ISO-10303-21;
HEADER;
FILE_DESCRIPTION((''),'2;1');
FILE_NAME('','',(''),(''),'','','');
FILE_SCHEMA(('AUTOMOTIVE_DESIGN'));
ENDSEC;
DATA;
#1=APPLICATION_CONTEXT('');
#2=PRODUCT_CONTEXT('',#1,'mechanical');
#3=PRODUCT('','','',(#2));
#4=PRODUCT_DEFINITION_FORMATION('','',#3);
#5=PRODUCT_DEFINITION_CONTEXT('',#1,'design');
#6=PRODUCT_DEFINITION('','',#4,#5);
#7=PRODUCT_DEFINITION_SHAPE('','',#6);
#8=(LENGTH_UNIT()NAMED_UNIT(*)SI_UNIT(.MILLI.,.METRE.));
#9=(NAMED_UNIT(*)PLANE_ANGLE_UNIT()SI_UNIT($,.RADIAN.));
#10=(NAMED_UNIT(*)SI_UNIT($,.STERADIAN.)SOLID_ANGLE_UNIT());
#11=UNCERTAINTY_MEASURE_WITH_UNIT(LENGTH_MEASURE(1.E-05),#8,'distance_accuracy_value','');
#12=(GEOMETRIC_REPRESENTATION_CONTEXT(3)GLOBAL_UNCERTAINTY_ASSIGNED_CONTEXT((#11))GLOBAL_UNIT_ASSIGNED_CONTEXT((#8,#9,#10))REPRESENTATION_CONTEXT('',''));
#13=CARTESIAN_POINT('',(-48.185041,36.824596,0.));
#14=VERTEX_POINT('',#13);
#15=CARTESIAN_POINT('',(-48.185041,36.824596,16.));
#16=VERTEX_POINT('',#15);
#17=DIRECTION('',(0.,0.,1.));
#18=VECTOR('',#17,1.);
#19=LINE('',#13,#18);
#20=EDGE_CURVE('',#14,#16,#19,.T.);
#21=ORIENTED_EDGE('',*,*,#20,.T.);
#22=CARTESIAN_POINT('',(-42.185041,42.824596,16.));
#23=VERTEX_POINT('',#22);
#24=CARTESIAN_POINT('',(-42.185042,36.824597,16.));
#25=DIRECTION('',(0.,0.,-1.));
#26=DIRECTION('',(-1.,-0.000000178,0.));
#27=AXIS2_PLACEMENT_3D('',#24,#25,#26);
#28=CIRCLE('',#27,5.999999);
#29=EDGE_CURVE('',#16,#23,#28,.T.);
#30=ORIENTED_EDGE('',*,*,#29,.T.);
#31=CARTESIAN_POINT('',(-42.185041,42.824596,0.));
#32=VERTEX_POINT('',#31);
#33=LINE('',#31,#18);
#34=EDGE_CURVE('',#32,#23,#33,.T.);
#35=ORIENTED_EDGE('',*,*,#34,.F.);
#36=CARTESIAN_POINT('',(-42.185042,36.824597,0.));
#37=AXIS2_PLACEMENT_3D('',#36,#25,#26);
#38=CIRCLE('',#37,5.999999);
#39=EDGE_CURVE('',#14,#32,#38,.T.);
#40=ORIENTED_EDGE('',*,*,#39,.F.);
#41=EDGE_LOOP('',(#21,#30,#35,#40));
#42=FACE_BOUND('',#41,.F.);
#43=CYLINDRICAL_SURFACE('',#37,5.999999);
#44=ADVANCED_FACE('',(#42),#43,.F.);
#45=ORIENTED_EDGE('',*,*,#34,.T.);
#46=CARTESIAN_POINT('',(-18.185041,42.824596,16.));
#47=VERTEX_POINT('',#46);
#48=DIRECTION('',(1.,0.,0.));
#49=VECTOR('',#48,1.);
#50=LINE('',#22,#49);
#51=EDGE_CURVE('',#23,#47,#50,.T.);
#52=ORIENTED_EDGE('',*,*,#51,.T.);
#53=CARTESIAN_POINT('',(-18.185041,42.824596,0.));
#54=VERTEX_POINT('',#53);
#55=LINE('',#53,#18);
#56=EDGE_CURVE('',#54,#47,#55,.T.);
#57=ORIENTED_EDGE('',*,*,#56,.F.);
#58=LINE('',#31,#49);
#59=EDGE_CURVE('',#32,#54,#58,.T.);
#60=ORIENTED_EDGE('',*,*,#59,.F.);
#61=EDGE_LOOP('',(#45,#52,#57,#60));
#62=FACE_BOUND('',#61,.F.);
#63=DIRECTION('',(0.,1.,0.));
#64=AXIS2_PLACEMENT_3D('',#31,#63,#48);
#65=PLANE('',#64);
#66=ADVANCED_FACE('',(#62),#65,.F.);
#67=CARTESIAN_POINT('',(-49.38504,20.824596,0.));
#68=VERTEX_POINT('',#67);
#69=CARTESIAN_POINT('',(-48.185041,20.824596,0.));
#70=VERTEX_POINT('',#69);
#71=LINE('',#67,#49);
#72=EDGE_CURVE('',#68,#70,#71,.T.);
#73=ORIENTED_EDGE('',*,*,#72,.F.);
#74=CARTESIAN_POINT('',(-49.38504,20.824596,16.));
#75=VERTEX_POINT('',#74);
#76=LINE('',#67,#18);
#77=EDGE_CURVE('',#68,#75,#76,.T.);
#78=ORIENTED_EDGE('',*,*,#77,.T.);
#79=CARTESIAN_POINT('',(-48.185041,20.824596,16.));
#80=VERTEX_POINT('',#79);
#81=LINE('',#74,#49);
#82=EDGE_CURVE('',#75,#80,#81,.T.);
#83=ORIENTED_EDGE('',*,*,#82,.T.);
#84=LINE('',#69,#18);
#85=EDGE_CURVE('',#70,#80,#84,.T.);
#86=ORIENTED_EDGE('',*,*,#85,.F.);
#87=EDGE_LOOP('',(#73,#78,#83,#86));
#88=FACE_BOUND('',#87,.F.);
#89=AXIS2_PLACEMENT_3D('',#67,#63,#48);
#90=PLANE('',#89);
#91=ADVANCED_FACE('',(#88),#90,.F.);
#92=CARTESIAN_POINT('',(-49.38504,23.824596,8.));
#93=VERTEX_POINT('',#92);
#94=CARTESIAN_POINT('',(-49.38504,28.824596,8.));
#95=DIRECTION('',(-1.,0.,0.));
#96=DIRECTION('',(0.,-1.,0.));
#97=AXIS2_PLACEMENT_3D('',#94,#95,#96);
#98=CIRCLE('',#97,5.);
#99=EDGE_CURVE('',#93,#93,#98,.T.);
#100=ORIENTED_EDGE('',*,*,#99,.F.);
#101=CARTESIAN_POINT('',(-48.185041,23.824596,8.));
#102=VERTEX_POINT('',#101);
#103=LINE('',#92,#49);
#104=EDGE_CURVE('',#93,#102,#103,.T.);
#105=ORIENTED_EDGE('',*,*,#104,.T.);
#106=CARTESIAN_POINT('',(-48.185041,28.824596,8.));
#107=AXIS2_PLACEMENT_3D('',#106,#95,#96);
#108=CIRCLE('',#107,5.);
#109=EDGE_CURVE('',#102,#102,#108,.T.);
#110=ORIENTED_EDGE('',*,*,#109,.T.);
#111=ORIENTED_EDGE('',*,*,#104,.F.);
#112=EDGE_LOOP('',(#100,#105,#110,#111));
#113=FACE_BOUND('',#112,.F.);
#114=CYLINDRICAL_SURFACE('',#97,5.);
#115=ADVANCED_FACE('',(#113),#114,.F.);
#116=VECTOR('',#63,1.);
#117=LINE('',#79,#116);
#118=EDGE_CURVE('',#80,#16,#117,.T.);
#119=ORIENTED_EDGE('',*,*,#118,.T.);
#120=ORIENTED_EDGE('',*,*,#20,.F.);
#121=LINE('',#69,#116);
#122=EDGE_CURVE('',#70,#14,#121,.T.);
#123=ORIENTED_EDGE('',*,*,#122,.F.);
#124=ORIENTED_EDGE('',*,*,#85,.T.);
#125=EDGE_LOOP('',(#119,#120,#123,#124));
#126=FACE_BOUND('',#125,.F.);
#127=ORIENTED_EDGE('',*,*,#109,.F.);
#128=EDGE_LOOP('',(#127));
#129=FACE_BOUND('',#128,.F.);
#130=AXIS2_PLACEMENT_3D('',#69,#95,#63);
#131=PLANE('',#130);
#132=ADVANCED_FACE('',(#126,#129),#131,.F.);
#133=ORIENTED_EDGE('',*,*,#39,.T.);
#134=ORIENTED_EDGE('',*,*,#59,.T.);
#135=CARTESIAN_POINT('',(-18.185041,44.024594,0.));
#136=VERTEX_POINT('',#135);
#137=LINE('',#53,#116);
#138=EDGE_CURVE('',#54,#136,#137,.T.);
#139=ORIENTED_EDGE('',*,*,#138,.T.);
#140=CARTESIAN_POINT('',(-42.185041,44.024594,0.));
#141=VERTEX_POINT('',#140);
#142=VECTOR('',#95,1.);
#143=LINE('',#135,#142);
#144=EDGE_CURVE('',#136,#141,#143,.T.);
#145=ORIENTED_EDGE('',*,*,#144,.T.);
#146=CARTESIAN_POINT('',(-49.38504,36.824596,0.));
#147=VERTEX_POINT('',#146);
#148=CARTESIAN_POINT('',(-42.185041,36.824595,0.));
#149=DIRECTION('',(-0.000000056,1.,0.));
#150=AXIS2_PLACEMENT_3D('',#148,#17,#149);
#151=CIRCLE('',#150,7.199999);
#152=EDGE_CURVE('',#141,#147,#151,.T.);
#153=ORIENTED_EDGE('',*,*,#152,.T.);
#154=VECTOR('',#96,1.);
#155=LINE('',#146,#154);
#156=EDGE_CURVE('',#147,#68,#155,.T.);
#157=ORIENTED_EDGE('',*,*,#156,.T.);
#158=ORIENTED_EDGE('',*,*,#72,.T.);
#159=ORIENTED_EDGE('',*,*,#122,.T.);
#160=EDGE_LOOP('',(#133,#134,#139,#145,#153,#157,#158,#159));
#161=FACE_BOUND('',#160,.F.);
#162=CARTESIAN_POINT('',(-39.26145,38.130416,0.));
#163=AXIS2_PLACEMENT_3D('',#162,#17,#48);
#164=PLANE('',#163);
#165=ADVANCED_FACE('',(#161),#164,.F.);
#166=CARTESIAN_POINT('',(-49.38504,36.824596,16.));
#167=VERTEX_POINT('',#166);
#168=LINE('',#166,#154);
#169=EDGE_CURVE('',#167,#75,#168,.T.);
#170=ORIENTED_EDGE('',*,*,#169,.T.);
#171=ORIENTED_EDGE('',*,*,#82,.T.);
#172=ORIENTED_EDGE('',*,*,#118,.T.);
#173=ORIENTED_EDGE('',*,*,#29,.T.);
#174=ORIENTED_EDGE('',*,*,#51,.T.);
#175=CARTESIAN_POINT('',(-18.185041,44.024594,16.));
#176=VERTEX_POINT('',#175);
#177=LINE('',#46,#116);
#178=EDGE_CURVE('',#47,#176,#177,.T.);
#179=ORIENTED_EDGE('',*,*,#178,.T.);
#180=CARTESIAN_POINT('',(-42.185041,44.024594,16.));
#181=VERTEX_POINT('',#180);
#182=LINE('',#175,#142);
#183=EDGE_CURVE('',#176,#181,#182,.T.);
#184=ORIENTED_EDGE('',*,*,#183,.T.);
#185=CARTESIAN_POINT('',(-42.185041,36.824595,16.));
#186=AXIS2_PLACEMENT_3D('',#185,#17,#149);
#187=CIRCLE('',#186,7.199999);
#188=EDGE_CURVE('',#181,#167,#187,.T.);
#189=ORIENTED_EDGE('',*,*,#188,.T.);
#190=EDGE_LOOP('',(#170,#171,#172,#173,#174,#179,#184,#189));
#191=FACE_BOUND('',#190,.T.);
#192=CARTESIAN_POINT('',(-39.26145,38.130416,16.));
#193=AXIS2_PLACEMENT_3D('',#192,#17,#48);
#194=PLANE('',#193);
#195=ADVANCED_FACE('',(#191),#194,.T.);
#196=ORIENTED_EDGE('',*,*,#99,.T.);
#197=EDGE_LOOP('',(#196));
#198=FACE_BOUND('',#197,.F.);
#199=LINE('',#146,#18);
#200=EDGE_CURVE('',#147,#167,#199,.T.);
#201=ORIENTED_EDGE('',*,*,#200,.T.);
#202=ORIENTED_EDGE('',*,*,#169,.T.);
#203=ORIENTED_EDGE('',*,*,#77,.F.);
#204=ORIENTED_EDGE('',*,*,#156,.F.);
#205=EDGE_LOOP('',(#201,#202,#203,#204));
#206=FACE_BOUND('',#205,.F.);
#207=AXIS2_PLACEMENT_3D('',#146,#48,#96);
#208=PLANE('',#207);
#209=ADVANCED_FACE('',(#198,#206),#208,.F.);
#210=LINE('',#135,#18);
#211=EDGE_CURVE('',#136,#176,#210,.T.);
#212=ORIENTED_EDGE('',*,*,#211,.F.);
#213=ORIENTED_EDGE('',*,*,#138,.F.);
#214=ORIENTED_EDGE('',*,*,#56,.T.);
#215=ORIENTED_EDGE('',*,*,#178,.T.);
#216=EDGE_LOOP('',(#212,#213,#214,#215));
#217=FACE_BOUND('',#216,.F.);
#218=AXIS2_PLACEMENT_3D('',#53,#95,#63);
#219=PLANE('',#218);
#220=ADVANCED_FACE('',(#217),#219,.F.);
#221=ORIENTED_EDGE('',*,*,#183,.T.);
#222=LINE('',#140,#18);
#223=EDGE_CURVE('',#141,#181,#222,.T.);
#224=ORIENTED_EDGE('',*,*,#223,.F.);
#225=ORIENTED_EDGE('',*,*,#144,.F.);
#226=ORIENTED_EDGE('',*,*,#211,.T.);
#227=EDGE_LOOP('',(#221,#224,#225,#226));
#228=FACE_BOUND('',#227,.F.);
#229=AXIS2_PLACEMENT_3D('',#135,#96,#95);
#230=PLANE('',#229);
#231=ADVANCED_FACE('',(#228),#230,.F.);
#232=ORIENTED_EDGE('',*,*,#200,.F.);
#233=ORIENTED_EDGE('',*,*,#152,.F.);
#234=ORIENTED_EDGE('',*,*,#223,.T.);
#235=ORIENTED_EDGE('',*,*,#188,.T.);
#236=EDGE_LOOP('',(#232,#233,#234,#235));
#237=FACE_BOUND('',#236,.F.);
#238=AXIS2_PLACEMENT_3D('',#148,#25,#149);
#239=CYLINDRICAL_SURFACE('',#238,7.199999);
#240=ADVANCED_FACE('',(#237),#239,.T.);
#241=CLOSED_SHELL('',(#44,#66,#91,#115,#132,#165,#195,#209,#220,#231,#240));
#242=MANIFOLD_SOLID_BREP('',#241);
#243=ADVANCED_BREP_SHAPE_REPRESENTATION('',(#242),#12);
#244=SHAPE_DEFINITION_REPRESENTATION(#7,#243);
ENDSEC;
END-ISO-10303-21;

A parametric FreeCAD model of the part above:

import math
import FreeCAD as App
import Part
import Sketcher
Q = App.Units.Quantity

doc = App.newDocument("Part")
params = doc.addObject("Spreadsheet::Sheet", "Params")
for row, (alias, value) in enumerate([
    ("sketch1_radius", "5.999999 mm"),
    ("sketch1_radius2", "7.199999 mm"),
    ("sketch1_width", "24 mm"),
    ("sketch1_height", "16 mm"),
    ("pad1_length", "16 mm"),
    ("sketch2_diameter", "10 mm"),
], start=1):
    params.set(f"A{row}", alias)
    params.set(f"B{row}", "=" + value)
    params.setAlias(f"B{row}", alias)

body = doc.addObject("PartDesign::Body", "Body")

sketch1 = body.newObject("Sketcher::SketchObject", "Sketch")
sketch1.AttachmentSupport = (doc.getObject("XY_Plane"), [""])
sketch1.MapMode = "FlatFace"
sketch1.addGeometry(Part.LineSegment(App.Vector(-49.38504, 20.824596, 0), App.Vector(-48.185041, 20.824596, 0)), False)
sketch1.addGeometry(Part.LineSegment(App.Vector(-48.185041, 20.824596, 0), App.Vector(-48.185041, 36.824596, 0)), False)
sketch1.addGeometry(Part.ArcOfCircle(Part.Circle(App.Vector(-42.185042, 36.824597, 0), App.Vector(0, 0, 1), 5.999999), math.radians(89.99999), math.radians(180.00001)), False)
sketch1.addGeometry(Part.LineSegment(App.Vector(-42.185041, 42.824596, 0), App.Vector(-18.185041, 42.824596, 0)), False)
sketch1.addGeometry(Part.LineSegment(App.Vector(-18.185041, 42.824596, 0), App.Vector(-18.185041, 44.024594, 0)), False)
sketch1.addGeometry(Part.LineSegment(App.Vector(-18.185041, 44.024594, 0), App.Vector(-42.185041, 44.024594, 0)), False)
sketch1.addGeometry(Part.ArcOfCircle(Part.Circle(App.Vector(-42.185041, 36.824595, 0), App.Vector(0, 0, 1), 7.199999), math.radians(90.000003), math.radians(179.999989)), False)
sketch1.addGeometry(Part.LineSegment(App.Vector(-49.38504, 36.824596, 0), App.Vector(-49.38504, 20.824596, 0)), False)
sketch1.addConstraint(Sketcher.Constraint("Coincident", 0, 2, 1, 1))
sketch1.addConstraint(Sketcher.Constraint("Tangent", 1, 2, 2, 2))
sketch1.addConstraint(Sketcher.Constraint("Tangent", 2, 1, 3, 1))
sketch1.addConstraint(Sketcher.Constraint("Coincident", 3, 2, 4, 1))
sketch1.addConstraint(Sketcher.Constraint("Coincident", 4, 2, 5, 1))
sketch1.addConstraint(Sketcher.Constraint("Tangent", 5, 2, 6, 1))
sketch1.addConstraint(Sketcher.Constraint("Tangent", 6, 2, 7, 1))
sketch1.addConstraint(Sketcher.Constraint("Coincident", 7, 2, 0, 1))
sketch1.addConstraint(Sketcher.Constraint("Horizontal", 0))
sketch1.addConstraint(Sketcher.Constraint("Vertical", 1))
sketch1.addConstraint(Sketcher.Constraint("Horizontal", 3))
sketch1.addConstraint(Sketcher.Constraint("Vertical", 4))
sketch1.addConstraint(Sketcher.Constraint("Horizontal", 5))
sketch1.addConstraint(Sketcher.Constraint("Vertical", 7))
sketch1.addConstraint(Sketcher.Constraint("Coincident", 6, 3, 2, 3))
sketch1.addConstraint(Sketcher.Constraint("Radius", 2, Q("5.999999 mm")))
sketch1.addConstraint(Sketcher.Constraint("Radius", 6, Q("7.199999 mm")))
sketch1.addConstraint(Sketcher.Constraint("DistanceX", 3, 1, 3, 2, Q("24 mm")))
sketch1.addConstraint(Sketcher.Constraint("DistanceY", 1, 1, 1, 2, Q("16 mm")))
sketch1.addConstraint(Sketcher.Constraint("DistanceX", 6, 3, -1, 1, Q("42.185041 mm")))
sketch1.addConstraint(Sketcher.Constraint("DistanceY", -1, 1, 2, 3, Q("36.824597 mm")))
sketch1.setExpression("Constraints[15]", "Params.sketch1_radius")
sketch1.setExpression("Constraints[16]", "Params.sketch1_radius2")
sketch1.setExpression("Constraints[17]", "Params.sketch1_width")
sketch1.setExpression("Constraints[18]", "Params.sketch1_height")
pad1 = body.newObject("PartDesign::Pad", "Pad")
pad1.Profile = sketch1
pad1.setExpression("Length", "Params.pad1_length")

sketch2 = body.newObject("Sketcher::SketchObject", "Sketch001")
sketch2.AttachmentSupport = (doc.getObject("YZ_Plane"), [""])
sketch2.MapMode = "FlatFace"
sketch2.AttachmentOffset = App.Placement(App.Vector(0, 0, -49.38504), App.Rotation())
sketch2.addGeometry(Part.Circle(App.Vector(28.824596, 8, 0), App.Vector(0, 0, 1), 5), False)
sketch2.addConstraint(Sketcher.Constraint("Diameter", 0, Q("10 mm")))
sketch2.addConstraint(Sketcher.Constraint("DistanceY", -1, 1, 0, 3, Q("8 mm")))
sketch2.addConstraint(Sketcher.Constraint("DistanceX", -1, 1, 0, 3, Q("28.824596 mm")))
sketch2.setExpression("Constraints[0]", "Params.sketch2_diameter")
pocket1 = body.newObject("PartDesign::Pocket", "Pocket")
pocket1.Profile = sketch2
pocket1.Type = "ThroughAll"
pocket1.Reversed = True

doc.recompute()
